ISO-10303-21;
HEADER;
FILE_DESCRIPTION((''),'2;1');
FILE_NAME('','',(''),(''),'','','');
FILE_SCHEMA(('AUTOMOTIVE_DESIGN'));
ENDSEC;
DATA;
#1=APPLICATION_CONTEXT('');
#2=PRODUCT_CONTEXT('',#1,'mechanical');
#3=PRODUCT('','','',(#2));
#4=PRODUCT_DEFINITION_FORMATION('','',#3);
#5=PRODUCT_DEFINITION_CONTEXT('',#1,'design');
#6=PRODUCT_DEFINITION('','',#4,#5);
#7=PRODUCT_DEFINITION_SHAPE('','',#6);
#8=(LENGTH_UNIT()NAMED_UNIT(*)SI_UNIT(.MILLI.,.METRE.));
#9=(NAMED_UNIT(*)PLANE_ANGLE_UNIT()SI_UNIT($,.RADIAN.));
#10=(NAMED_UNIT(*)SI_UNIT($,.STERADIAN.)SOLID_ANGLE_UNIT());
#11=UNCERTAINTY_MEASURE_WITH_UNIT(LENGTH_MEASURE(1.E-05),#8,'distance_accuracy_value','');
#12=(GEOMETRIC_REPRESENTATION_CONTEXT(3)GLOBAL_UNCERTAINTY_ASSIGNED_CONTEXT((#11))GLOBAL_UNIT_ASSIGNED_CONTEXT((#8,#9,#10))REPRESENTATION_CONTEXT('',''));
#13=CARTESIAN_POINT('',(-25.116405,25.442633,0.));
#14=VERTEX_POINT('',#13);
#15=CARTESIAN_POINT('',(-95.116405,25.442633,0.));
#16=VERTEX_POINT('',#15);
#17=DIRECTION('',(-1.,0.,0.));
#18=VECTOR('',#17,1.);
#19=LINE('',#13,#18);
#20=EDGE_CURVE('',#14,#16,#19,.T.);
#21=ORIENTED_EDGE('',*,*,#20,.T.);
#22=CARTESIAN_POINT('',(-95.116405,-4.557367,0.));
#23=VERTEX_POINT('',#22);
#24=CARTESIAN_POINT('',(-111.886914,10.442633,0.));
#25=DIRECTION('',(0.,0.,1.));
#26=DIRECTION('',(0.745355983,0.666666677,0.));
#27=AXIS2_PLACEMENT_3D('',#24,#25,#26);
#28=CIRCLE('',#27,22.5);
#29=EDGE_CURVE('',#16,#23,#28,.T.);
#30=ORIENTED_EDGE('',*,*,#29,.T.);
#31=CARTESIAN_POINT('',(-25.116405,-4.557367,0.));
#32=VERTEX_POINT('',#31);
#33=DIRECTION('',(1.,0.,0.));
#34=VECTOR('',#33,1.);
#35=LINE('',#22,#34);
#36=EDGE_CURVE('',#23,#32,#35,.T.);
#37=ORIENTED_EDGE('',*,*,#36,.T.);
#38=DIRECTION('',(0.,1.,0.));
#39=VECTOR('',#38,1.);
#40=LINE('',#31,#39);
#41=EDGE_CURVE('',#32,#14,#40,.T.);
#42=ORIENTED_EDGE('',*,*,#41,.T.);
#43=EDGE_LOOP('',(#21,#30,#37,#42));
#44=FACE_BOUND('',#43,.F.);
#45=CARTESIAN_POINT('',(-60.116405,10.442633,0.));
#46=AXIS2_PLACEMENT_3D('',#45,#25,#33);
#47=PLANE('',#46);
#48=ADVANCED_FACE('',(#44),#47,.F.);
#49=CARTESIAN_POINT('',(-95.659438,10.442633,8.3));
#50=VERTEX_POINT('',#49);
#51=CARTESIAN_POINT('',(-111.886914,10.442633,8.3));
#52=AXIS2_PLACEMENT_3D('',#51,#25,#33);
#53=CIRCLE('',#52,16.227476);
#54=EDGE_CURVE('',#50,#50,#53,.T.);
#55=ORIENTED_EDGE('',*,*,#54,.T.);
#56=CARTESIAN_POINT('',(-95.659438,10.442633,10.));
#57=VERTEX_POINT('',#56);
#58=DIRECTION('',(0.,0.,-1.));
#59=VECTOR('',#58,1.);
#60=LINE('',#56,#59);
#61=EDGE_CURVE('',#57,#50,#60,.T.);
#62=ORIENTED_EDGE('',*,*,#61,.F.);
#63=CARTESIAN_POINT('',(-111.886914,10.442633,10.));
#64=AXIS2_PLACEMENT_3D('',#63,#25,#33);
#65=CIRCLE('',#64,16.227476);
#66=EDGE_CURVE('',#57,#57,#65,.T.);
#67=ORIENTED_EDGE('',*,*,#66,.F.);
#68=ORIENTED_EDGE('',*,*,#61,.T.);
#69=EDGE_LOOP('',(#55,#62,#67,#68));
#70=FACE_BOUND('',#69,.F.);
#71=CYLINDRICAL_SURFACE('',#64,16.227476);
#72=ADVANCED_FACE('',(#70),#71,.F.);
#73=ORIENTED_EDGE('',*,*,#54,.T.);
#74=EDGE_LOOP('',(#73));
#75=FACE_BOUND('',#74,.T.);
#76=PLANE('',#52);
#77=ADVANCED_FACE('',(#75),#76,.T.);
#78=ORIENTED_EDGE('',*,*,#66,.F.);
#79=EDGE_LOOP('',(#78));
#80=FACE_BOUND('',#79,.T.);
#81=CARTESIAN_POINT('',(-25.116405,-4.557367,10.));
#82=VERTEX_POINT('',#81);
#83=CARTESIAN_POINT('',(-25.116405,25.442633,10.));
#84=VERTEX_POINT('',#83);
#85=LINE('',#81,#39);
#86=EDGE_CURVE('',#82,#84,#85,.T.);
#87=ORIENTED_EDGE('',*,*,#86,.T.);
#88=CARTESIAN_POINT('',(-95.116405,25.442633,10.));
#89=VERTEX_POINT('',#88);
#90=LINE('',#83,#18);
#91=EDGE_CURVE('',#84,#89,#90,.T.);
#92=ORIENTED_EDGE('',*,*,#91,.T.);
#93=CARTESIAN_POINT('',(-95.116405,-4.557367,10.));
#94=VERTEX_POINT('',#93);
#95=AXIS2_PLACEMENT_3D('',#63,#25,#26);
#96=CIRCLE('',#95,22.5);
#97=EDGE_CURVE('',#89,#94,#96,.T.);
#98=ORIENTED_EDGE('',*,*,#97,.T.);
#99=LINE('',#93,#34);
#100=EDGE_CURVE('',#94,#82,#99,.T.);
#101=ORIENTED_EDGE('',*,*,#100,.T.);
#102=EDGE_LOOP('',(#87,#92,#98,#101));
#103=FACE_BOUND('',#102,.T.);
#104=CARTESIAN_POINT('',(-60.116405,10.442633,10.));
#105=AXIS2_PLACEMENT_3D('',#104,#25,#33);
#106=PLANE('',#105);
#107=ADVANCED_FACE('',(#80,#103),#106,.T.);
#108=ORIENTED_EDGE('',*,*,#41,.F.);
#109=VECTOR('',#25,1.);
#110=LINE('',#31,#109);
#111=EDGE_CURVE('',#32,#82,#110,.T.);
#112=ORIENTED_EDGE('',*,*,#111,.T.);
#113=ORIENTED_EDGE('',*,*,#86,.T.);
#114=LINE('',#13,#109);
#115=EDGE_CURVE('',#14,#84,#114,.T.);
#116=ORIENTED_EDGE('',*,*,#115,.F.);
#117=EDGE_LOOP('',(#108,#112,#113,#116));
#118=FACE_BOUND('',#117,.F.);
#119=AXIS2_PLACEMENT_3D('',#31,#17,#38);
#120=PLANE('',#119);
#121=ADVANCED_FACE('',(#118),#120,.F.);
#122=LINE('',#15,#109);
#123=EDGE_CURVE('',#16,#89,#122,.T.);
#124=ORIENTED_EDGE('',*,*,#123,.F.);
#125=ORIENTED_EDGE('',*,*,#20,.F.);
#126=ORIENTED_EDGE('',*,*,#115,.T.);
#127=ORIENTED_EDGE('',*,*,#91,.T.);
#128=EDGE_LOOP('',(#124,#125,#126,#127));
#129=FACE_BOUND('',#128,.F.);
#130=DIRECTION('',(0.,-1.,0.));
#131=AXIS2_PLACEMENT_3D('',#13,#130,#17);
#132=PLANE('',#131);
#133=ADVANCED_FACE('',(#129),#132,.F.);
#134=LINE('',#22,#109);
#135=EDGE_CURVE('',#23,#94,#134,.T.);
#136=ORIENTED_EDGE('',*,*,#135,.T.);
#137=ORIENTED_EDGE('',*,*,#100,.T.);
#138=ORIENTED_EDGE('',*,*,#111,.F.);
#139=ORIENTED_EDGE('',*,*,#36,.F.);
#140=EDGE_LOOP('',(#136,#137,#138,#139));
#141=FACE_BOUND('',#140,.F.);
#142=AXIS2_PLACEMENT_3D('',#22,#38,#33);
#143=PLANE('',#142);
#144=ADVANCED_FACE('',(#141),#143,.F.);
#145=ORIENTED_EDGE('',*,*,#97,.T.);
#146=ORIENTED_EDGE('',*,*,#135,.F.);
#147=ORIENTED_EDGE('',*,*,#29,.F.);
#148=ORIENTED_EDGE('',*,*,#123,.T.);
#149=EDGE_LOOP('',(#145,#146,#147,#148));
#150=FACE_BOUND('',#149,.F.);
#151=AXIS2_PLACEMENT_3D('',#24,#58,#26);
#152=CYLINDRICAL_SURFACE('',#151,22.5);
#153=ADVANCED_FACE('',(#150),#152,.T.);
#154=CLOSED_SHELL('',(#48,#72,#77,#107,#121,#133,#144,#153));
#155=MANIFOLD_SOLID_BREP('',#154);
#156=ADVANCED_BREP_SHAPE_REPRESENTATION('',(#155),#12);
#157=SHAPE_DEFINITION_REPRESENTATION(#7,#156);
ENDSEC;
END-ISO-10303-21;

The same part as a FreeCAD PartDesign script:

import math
import FreeCAD as App
import Part
import Sketcher

V = App.Vector

doc = App.newDocument("Part")
params = doc.addObject("Spreadsheet::Sheet", "Params")
for row, (alias, value) in enumerate([
    ("sketch1_radius", "22.5 mm"),
    ("sketch1_width", "70 mm"),
    ("sketch1_height", "30 mm"),
    ("pad1_length", "10 mm"),
    ("pocket1_length", "1.7 mm"),
], start=1):
    params.set(f"A{row}", alias)
    params.set(f"B{row}", "=" + value)
    params.setAlias(f"B{row}", alias)

body = doc.addObject("PartDesign::Body", "Body")

# Sketch on XY plane
sketch1 = doc.addObject("Sketcher::SketchObject", "Sketch")
body.addObject(sketch1)
sketch1.AttachmentSupport = (doc.XY_Plane, [""])
sketch1.MapMode = "FlatFace"
sketch1.addGeometry([
    Part.LineSegment(V(-25, 25, 0), V(-95, 25, 0)),
    Part.ArcOfCircle(Part.Circle(V(-112, 10, 0), V(0, 0, 1), 22), math.radians(42), math.radians(318)),
    Part.LineSegment(V(-95, -5, 0), V(-25, -5, 0)),
    Part.LineSegment(V(-25, -5, 0), V(-25, 25, 0)),
], False)
sketch1.addConstraint([
    Sketcher.Constraint("Coincident", 0, 2, 1, 1),
    Sketcher.Constraint("Coincident", 1, 2, 2, 1),
    Sketcher.Constraint("Coincident", 2, 2, 3, 1),
    Sketcher.Constraint("Coincident", 3, 2, 0, 1),
    Sketcher.Constraint("Horizontal", 0),
    Sketcher.Constraint("Horizontal", 2),
    Sketcher.Constraint("Vertical", 3),
    Sketcher.Constraint("Vertical", 0, 2, 1, 2),
    Sketcher.Constraint("Radius", 1, 22.5),
    Sketcher.Constraint("DistanceX", 0, 2, 0, 1, 70.0),
    Sketcher.Constraint("DistanceY", 3, 1, 3, 2, 30.0),
    Sketcher.Constraint("DistanceX", 1, 3, -1, 1, 111.886914),
    Sketcher.Constraint("DistanceY", -1, 1, 1, 3, 10.442633),
])
sketch1.setExpression("Constraints[8]", "Params.sketch1_radius")
sketch1.setExpression("Constraints[9]", "Params.sketch1_width")
sketch1.setExpression("Constraints[10]", "Params.sketch1_height")
pad1 = doc.addObject("PartDesign::Pad", "Pad")
body.addObject(pad1)
pad1.Profile = sketch1
pad1.setExpression("Length", "Params.pad1_length")

# Sketch on XY plane
sketch2 = doc.addObject("Sketcher::SketchObject", "Sketch001")
body.addObject(sketch2)
sketch2.AttachmentSupport = (doc.XY_Plane, [""])
sketch2.MapMode = "FlatFace"
sketch2.AttachmentOffset = App.Placement(V(0, 0, 10), App.Rotation())
sketch2.addGeometry(Part.Circle(V(-112, 10, 0), V(0, 0, 1), 16), False)
sketch2.addConstraint([
    Sketcher.Constraint("Diameter", 0, 32.454952),
    Sketcher.Constraint("DistanceX", 0, 3, -1, 1, 111.886914),
    Sketcher.Constraint("DistanceY", -1, 1, 0, 3, 10.442633),
])
pocket1 = doc.addObject("PartDesign::Pocket", "Pocket")
body.addObject(pocket1)
pocket1.Profile = sketch2
pocket1.setExpression("Length", "Params.pocket1_length")

doc.recompute()
